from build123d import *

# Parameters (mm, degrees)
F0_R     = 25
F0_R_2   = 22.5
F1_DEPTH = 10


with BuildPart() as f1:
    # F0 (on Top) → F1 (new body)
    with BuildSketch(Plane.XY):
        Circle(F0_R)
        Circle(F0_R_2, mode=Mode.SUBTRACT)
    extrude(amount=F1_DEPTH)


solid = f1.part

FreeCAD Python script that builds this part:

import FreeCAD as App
import Part
import Sketcher
Q = App.Units.Quantity

doc = App.newDocument("Part")
body = doc.addObject("PartDesign::Body", "Body")

# Sketch on XY plane
sketch1 = doc.addObject("Sketcher::SketchObject", "Sketch")
body.addObject(sketch1)
sketch1.AttachmentSupport = (doc.XY_Plane, [""])
sketch1.MapMode = "FlatFace"
sketch1.addGeometry([
    Part.Circle(App.Vector(0, 0, 0), App.Vector(0, 0, 1), 25),
    Part.Circle(App.Vector(0, 0, 0), App.Vector(0, 0, 1), 22),
], False)
sketch1.addConstraint([
    Sketcher.Constraint("Coincident", 0, 3, -1, 1),
    Sketcher.Constraint("Coincident", 1, 3, -1, 1),
    Sketcher.Constraint("Diameter", 0, Q("50 mm")),
    Sketcher.Constraint("Diameter", 1, Q("45 mm")),
])
pad1 = doc.addObject("PartDesign::Pad", "Pad")
body.addObject(pad1)
pad1.Profile = sketch1
pad1.Length = 10

doc.recompute()
